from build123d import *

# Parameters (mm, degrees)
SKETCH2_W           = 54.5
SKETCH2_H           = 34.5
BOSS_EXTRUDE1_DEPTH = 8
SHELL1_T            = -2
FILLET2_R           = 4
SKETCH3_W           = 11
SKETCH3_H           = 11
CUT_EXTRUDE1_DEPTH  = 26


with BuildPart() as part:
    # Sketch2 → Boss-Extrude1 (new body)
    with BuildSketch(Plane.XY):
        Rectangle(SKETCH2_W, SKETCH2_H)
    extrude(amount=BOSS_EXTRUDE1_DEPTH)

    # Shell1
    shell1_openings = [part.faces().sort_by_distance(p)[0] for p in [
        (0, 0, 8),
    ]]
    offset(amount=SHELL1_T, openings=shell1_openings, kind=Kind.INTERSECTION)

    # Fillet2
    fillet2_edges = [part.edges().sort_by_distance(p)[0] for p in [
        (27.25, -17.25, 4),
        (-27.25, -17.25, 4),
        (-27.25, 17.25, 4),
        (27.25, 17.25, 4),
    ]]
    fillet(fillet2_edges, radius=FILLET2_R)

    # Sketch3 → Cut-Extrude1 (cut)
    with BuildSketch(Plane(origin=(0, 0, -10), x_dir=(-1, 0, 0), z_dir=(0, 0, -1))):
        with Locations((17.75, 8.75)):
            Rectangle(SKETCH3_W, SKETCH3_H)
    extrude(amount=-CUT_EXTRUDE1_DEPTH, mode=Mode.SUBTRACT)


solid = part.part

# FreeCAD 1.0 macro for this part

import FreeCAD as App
import Part
import Sketcher

V = App.Vector


def edges_at(feature, points):
    """Names of the edges that pass closest to the given points."""
    edges = feature.Shape.Edges
    near = lambda p: min(range(len(edges)), key=lambda i: edges[i].distToShape(Part.Vertex(*p))[0])
    return sorted({f"Edge{near(p) + 1}" for p in points})


def faces_at(feature, points):
    """Names of the faces that lie closest to the given points."""
    faces = feature.Shape.Faces
    near = lambda p: min(range(len(faces)), key=lambda i: faces[i].distToShape(Part.Vertex(*p))[0])
    return sorted({f"Face{near(p) + 1}" for p in points})

doc = App.newDocument("Part")
body = doc.addObject("PartDesign::Body", "Body")

sketch1 = body.newObject("Sketcher::SketchObject", "Sketch")
sketch1.AttachmentSupport = (doc.getObject("XY_Plane"), [""])
sketch1.MapMode = "FlatFace"
sketch1.addGeometry([
    Part.LineSegment(V(-27.25, 17.25, 0), V(-27.25, -17.25, 0)),
    Part.LineSegment(V(-27.25, -17.25, 0), V(27.25, -17.25, 0)),
    Part.LineSegment(V(27.25, -17.25, 0), V(27.25, 17.25, 0)),
    Part.LineSegment(V(27.25, 17.25, 0), V(-27.25, 17.25, 0)),
], False)
sketch1.addConstraint([
    Sketcher.Constraint("Coincident", 0, 2, 1, 1),
    Sketcher.Constraint("Coincident", 1, 2, 2, 1),
    Sketcher.Constraint("Coincident", 2, 2, 3, 1),
    Sketcher.Constraint("Coincident", 3, 2, 0, 1),
    Sketcher.Constraint("Vertical", 0),
    Sketcher.Constraint("Horizontal", 1),
    Sketcher.Constraint("Vertical", 2),
    Sketcher.Constraint("Horizontal", 3),
    Sketcher.Constraint("Symmetric", 0, 2, 2, 2, -1, 1),
    Sketcher.Constraint("DistanceX", 1, 1, 1, 2, 54.5),
    Sketcher.Constraint("DistanceY", 0, 2, 0, 1, 34.5),
])
pad1 = body.newObject("PartDesign::Pad", "Pad")
pad1.Profile = sketch1
pad1.Length = 8
doc.recompute()

thickness = body.newObject("PartDesign::Thickness", "Thickness")
thickness.Base = (pad1, faces_at(pad1, [(0, 0, 8)]))
thickness.Value = 2
thickness.Reversed = True
thickness.Join = "Intersection"
doc.recompute()

fillet = body.newObject("PartDesign::Fillet", "Fillet")
fillet.Base = (thickness, edges_at(thickness, [
    (27.25, -17.25, 4),
    (-27.25, -17.25, 4),
    (-27.25, 17.25, 4),
    (27.25, 17.25, 4),
]))
fillet.Radius = 4

sketch2 = body.newObject("Sketcher::SketchObject", "Sketch001")
sketch2.AttachmentSupport = (doc.getObject("XY_Plane"), [""])
sketch2.MapMode = "FlatFace"
sketch2.AttachmentOffset = App.Placement(V(0, 0, -10), App.Rotation())
sketch2.addGeometry([
    Part.LineSegment(V(-12.25, 14.25, 0), V(-12.25, 3.25, 0)),
    Part.LineSegment(V(-12.25, 3.25, 0), V(-23.25, 3.25, 0)),
    Part.LineSegment(V(-23.25, 3.25, 0), V(-23.25, 14.25, 0)),
    Part.LineSegment(V(-23.25, 14.25, 0), V(-12.25, 14.25, 0)),
], False)
sketch2.addConstraint([
    Sketcher.Constraint("Coincident", 0, 2, 1, 1),
    Sketcher.Constraint("Coincident", 1, 2, 2, 1),
    Sketcher.Constraint("Coincident", 2, 2, 3, 1),
    Sketcher.Constraint("Coincident", 3, 2, 0, 1),
    Sketcher.Constraint("Vertical", 0),
    Sketcher.Constraint("Horizontal", 1),
    Sketcher.Constraint("Vertical", 2),
    Sketcher.Constraint("Horizontal", 3),
    Sketcher.Constraint("Equal", 3, 0),
    Sketcher.Constraint("DistanceX", 1, 2, 1, 1, 11.0),
    Sketcher.Constraint("DistanceX", 0, 2, -1, 1, 12.25),
    Sketcher.Constraint("DistanceY", -1, 1, 0, 2, 3.25),
])
pocket1 = body.newObject("PartDesign::Pocket", "Pocket")
pocket1.Profile = sketch2
pocket1.Length = 26
pocket1.Reversed = True

doc.recompute()
